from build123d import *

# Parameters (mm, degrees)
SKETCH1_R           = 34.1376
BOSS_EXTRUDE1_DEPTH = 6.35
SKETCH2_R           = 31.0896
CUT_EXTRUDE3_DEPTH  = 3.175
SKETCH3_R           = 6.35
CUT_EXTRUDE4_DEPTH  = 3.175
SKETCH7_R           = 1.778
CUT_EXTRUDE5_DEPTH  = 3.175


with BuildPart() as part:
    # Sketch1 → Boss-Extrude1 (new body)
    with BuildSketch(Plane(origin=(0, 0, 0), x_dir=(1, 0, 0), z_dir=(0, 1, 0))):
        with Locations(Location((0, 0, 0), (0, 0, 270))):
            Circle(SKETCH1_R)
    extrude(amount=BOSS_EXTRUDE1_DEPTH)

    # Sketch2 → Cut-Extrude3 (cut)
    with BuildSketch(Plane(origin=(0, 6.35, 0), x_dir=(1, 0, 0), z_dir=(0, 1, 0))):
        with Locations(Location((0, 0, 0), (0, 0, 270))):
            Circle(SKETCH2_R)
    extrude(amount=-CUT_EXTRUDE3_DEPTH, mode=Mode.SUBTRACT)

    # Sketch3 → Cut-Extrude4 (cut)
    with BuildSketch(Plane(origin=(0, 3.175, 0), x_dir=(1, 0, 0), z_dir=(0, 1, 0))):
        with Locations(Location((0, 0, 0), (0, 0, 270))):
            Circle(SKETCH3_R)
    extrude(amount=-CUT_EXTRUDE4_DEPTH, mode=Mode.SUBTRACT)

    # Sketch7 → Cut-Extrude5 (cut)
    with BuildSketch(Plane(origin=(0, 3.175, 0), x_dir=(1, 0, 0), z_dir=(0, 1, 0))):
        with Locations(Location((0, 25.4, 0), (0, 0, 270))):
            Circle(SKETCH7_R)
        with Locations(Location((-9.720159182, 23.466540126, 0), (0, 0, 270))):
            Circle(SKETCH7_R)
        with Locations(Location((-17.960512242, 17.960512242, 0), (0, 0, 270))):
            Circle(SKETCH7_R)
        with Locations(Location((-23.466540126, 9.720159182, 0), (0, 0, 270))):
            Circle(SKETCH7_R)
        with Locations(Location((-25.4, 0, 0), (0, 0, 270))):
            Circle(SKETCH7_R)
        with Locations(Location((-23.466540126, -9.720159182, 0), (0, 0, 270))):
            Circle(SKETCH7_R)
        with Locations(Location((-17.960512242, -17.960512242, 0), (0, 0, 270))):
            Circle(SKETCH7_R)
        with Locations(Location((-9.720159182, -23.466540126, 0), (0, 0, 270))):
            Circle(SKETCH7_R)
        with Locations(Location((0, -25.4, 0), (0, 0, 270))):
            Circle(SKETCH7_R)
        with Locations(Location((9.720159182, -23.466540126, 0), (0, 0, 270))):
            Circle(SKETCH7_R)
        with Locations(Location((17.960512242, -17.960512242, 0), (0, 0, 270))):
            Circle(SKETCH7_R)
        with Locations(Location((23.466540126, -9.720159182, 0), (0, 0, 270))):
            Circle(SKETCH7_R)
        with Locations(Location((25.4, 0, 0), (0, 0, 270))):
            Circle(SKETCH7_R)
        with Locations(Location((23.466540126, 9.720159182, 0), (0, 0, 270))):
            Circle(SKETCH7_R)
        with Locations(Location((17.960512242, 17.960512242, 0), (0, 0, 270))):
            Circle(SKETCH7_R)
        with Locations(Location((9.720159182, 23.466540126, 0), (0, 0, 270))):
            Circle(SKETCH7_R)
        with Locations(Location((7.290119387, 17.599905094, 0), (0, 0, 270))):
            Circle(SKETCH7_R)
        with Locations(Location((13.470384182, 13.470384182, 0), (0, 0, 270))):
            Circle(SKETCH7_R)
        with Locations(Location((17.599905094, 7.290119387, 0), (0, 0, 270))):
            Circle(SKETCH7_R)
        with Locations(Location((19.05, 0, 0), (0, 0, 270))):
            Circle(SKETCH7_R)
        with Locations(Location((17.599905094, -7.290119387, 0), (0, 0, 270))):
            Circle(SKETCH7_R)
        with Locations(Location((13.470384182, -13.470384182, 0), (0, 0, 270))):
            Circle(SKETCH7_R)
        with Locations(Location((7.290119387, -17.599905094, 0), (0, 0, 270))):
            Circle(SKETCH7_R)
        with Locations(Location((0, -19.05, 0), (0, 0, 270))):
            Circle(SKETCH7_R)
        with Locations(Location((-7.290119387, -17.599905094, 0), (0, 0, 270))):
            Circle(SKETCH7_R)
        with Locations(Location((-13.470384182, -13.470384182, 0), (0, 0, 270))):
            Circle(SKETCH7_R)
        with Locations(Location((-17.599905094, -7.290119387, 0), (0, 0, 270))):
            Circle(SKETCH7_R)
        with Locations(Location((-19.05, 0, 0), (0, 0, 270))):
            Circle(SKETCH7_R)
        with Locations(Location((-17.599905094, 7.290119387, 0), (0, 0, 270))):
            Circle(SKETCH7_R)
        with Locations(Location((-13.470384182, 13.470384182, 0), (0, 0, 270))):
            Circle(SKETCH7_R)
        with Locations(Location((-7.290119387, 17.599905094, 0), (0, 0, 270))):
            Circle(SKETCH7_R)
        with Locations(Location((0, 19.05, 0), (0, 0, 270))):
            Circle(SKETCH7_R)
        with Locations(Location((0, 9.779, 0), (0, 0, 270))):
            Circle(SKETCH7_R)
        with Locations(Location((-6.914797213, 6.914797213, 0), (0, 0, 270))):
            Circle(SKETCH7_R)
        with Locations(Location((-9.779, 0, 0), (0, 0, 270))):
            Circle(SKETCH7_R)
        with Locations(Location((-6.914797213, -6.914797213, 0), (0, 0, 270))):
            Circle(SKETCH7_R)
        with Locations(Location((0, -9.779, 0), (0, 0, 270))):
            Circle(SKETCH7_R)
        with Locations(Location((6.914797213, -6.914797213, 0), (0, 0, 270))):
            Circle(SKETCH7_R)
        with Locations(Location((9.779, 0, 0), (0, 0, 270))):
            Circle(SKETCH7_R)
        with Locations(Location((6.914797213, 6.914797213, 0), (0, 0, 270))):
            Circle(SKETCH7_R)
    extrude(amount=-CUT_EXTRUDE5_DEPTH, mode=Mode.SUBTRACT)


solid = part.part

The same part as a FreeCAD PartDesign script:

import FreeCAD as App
import Part
import Sketcher
from FreeCAD import Vector
Q = App.Units.Quantity

doc = App.newDocument("Part")
params = doc.addObject("Spreadsheet::Sheet", "Params")
for row, (alias, value) in enumerate([
    ("sketch1_diameter", "2.688 in"),
    ("pad1_length", "0.25 in"),
    ("sketch2_diameter", "2.448 in"),
    ("pocket1_length", "0.125 in"),
    ("sketch3_diameter", "0.5 in"),
    ("pocket2_length", "0.125 in"),
    ("sketch4_diameter", "0.14 in"),
    ("pocket3_length", "0.125 in"),
], start=1):
    params.set(f"A{row}", alias)
    params.set(f"B{row}", "=" + value)
    params.setAlias(f"B{row}", alias)

body = doc.addObject("PartDesign::Body", "Body")

# Sketch on XZ plane
sketch1 = body.newObject("Sketcher::SketchObject", "Sketch")
sketch1.AttachmentSupport = (doc.getObject("XZ_Plane"), [""])
sketch1.MapMode = "FlatFace"
sketch1.addGeometry(Part.Circle(Vector(0, 0, 0), Vector(0, 0, 1), 34), False)
sketch1.addConstraint(Sketcher.Constraint("Coincident", 0, 3, -1, 1))
sketch1.addConstraint(Sketcher.Constraint("Diameter", 0, Q("2.688 in")))
sketch1.setExpression("Constraints[1]", "Params.sketch1_diameter")
pad1 = body.newObject("PartDesign::Pad", "Pad")
pad1.Profile = sketch1
pad1.setExpression("Length", "Params.pad1_length")
pad1.Reversed = True

# Sketch on XZ plane
sketch2 = body.newObject("Sketcher::SketchObject", "Sketch001")
sketch2.AttachmentSupport = (doc.getObject("XZ_Plane"), [""])
sketch2.MapMode = "FlatFace"
sketch2.AttachmentOffset = App.Placement(Vector(0, 0, -0.25 * 25.4), App.Rotation())
sketch2.addGeometry(Part.Circle(Vector(0, 0, 0), Vector(0, 0, 1), 31), False)
sketch2.addConstraint(Sketcher.Constraint("Coincident", 0, 3, -1, 1))
sketch2.addConstraint(Sketcher.Constraint("Diameter", 0, Q("2.448 in")))
sketch2.setExpression("Constraints[1]", "Params.sketch2_diameter")
pocket1 = body.newObject("PartDesign::Pocket", "Pocket")
pocket1.Profile = sketch2
pocket1.setExpression("Length", "Params.pocket1_length")
pocket1.Reversed = True

# Sketch on XZ plane
sketch3 = body.newObject("Sketcher::SketchObject", "Sketch002")
sketch3.AttachmentSupport = (doc.getObject("XZ_Plane"), [""])
sketch3.MapMode = "FlatFace"
sketch3.AttachmentOffset = App.Placement(Vector(0, 0, -0.125 * 25.4), App.Rotation())
sketch3.addGeometry(Part.Circle(Vector(0, 0, 0), Vector(0, 0, 1), 6), False)
sketch3.addConstraint(Sketcher.Constraint("Coincident", 0, 3, -1, 1))
sketch3.addConstraint(Sketcher.Constraint("Diameter", 0, Q("0.5 in")))
sketch3.setExpression("Constraints[1]", "Params.sketch3_diameter")
pocket2 = body.newObject("PartDesign::Pocket", "Pocket001")
pocket2.Profile = sketch3
pocket2.setExpression("Length", "Params.pocket2_length")
pocket2.Reversed = True

# Sketch on XZ plane
sketch4 = body.newObject("Sketcher::SketchObject", "Sketch003")
sketch4.AttachmentSupport = (doc.getObject("XZ_Plane"), [""])
sketch4.MapMode = "FlatFace"
sketch4.AttachmentOffset = App.Placement(Vector(0, 0, -0.125 * 25.4), App.Rotation())
sketch4.addGeometry(Part.Circle(Vector(0, -25.4, 0), Vector(0, 0, 1), 1.8), False)
sketch4.addGeometry(Part.Circle(Vector(-9.7, -23.5, 0), Vector(0, 0, 1), 1.8), False)
sketch4.addGeometry(Part.Circle(Vector(-18, -18, 0), Vector(0, 0, 1), 1.8), False)
sketch4.addGeometry(Part.Circle(Vector(-23.5, -9.7, 0), Vector(0, 0, 1), 1.8), False)
sketch4.addGeometry(Part.Circle(Vector(-25.4, 0, 0), Vector(0, 0, 1), 1.8), False)
sketch4.addGeometry(Part.Circle(Vector(-23.5, 9.7, 0), Vector(0, 0, 1), 1.8), False)
sketch4.addGeometry(Part.Circle(Vector(-18, 18, 0), Vector(0, 0, 1), 1.8), False)
sketch4.addGeometry(Part.Circle(Vector(-9.7, 23.5, 0), Vector(0, 0, 1), 1.8), False)
sketch4.addGeometry(Part.Circle(Vector(0, 25.4, 0), Vector(0, 0, 1), 1.8), False)
sketch4.addGeometry(Part.Circle(Vector(9.7, 23.5, 0), Vector(0, 0, 1), 1.8), False)
sketch4.addGeometry(Part.Circle(Vector(18, 18, 0), Vector(0, 0, 1), 1.8), False)
sketch4.addGeometry(Part.Circle(Vector(23.5, 9.7, 0), Vector(0, 0, 1), 1.8), False)
sketch4.addGeometry(Part.Circle(Vector(25.4, 0, 0), Vector(0, 0, 1), 1.8), False)
sketch4.addGeometry(Part.Circle(Vector(23.5, -9.7, 0), Vector(0, 0, 1), 1.8), False)
sketch4.addGeometry(Part.Circle(Vector(18, -18, 0), Vector(0, 0, 1), 1.8), False)
sketch4.addGeometry(Part.Circle(Vector(9.7, -23.5, 0), Vector(0, 0, 1), 1.8), False)
sketch4.addGeometry(Part.Circle(Vector(7.3, -17.6, 0), Vector(0, 0, 1), 1.8), False)
sketch4.addGeometry(Part.Circle(Vector(13.5, -13.5, 0), Vector(0, 0, 1), 1.8), False)
sketch4.addGeometry(Part.Circle(Vector(17.6, -7.3, 0), Vector(0, 0, 1), 1.8), False)
sketch4.addGeometry(Part.Circle(Vector(19.1, 0, 0), Vector(0, 0, 1), 1.8), False)
sketch4.addGeometry(Part.Circle(Vector(17.6, 7.3, 0), Vector(0, 0, 1), 1.8), False)
sketch4.addGeometry(Part.Circle(Vector(13.5, 13.5, 0), Vector(0, 0, 1), 1.8), False)
sketch4.addGeometry(Part.Circle(Vector(7.3, 17.6, 0), Vector(0, 0, 1), 1.8), False)
sketch4.addGeometry(Part.Circle(Vector(0, 19.1, 0), Vector(0, 0, 1), 1.8), False)
sketch4.addGeometry(Part.Circle(Vector(-7.3, 17.6, 0), Vector(0, 0, 1), 1.8), False)
sketch4.addGeometry(Part.Circle(Vector(-13.5, 13.5, 0), Vector(0, 0, 1), 1.8), False)
sketch4.addGeometry(Part.Circle(Vector(-17.6, 7.3, 0), Vector(0, 0, 1), 1.8), False)
sketch4.addGeometry(Part.Circle(Vector(-19.1, 0, 0), Vector(0, 0, 1), 1.8), False)
sketch4.addGeometry(Part.Circle(Vector(-17.6, -7.3, 0), Vector(0, 0, 1), 1.8), False)
sketch4.addGeometry(Part.Circle(Vector(-13.5, -13.5, 0), Vector(0, 0, 1), 1.8), False)
sketch4.addGeometry(Part.Circle(Vector(-7.3, -17.6, 0), Vector(0, 0, 1), 1.8), False)
sketch4.addGeometry(Part.Circle(Vector(0, -19.1, 0), Vector(0, 0, 1), 1.8), False)
sketch4.addGeometry(Part.Circle(Vector(0, -9.8, 0), Vector(0, 0, 1), 1.8), False)
sketch4.addGeometry(Part.Circle(Vector(-6.9, -6.9, 0), Vector(0, 0, 1), 1.8), False)
sketch4.addGeometry(Part.Circle(Vector(-9.8, 0, 0), Vector(0, 0, 1), 1.8), False)
sketch4.addGeometry(Part.Circle(Vector(-6.9, 6.9, 0), Vector(0, 0, 1), 1.8), False)
sketch4.addGeometry(Part.Circle(Vector(0, 9.8, 0), Vector(0, 0, 1), 1.8), False)
sketch4.addGeometry(Part.Circle(Vector(6.9, 6.9, 0), Vector(0, 0, 1), 1.8), False)
sketch4.addGeometry(Part.Circle(Vector(9.8, 0, 0), Vector(0, 0, 1), 1.8), False)
sketch4.addGeometry(Part.Circle(Vector(6.9, -6.9, 0), Vector(0, 0, 1), 1.8), False)
sketch4.addConstraint(Sketcher.Constraint("Equal", 0, 1))
sketch4.addConstraint(Sketcher.Constraint("Equal", 1, 2))
sketch4.addConstraint(Sketcher.Constraint("Equal", 2, 3))
sketch4.addConstraint(Sketcher.Constraint("Equal", 3, 4))
sketch4.addConstraint(Sketcher.Constraint("Equal", 4, 5))
sketch4.addConstraint(Sketcher.Constraint("Equal", 5, 6))
sketch4.addConstraint(Sketcher.Constraint("Equal", 6, 7))
sketch4.addConstraint(Sketcher.Constraint("Equal", 7, 8))
sketch4.addConstraint(Sketcher.Constraint("Equal", 8, 9))
sketch4.addConstraint(Sketcher.Constraint("Equal", 9, 10))
sketch4.addConstraint(Sketcher.Constraint("Equal", 10, 11))
sketch4.addConstraint(Sketcher.Constraint("Equal", 11, 12))
sketch4.addConstraint(Sketcher.Constraint("Equal", 12, 13))
sketch4.addConstraint(Sketcher.Constraint("Equal", 13, 14))
sketch4.addConstraint(Sketcher.Constraint("Equal", 14, 15))
sketch4.addConstraint(Sketcher.Constraint("Equal", 15, 16))
sketch4.addConstraint(Sketcher.Constraint("Equal", 16, 17))
sketch4.addConstraint(Sketcher.Constraint("Equal", 17, 18))
sketch4.addConstraint(Sketcher.Constraint("Equal", 18, 19))
sketch4.addConstraint(Sketcher.Constraint("Equal", 19, 20))
sketch4.addConstraint(Sketcher.Constraint("Equal", 20, 21))
sketch4.addConstraint(Sketcher.Constraint("Equal", 21, 22))
sketch4.addConstraint(Sketcher.Constraint("Equal", 22, 23))
sketch4.addConstraint(Sketcher.Constraint("Equal", 23, 24))
sketch4.addConstraint(Sketcher.Constraint("Equal", 24, 25))
sketch4.addConstraint(Sketcher.Constraint("Equal", 25, 26))
sketch4.addConstraint(Sketcher.Constraint("Equal", 26, 27))
sketch4.addConstraint(Sketcher.Constraint("Equal", 27, 28))
sketch4.addConstraint(Sketcher.Constraint("Equal", 28, 29))
sketch4.addConstraint(Sketcher.Constraint("Equal", 29, 30))
sketch4.addConstraint(Sketcher.Constraint("Equal", 30, 31))
sketch4.addConstraint(Sketcher.Constraint("Equal", 31, 32))
sketch4.addConstraint(Sketcher.Constraint("Equal", 32, 33))
sketch4.addConstraint(Sketcher.Constraint("Equal", 33, 34))
sketch4.addConstraint(Sketcher.Constraint("Equal", 34, 35))
sketch4.addConstraint(Sketcher.Constraint("Equal", 35, 36))
sketch4.addConstraint(Sketcher.Constraint("Equal", 36, 37))
sketch4.addConstraint(Sketcher.Constraint("Equal", 37, 38))
sketch4.addConstraint(Sketcher.Constraint("Equal", 38, 39))
sketch4.addConstraint(Sketcher.Constraint("Symmetric", 0, 3, 8, 3, -1, 1))
sketch4.addConstraint(Sketcher.Constraint("Symmetric", 1, 3, 9, 3, -1, 1))
sketch4.addConstraint(Sketcher.Constraint("Symmetric", 2, 3, 10, 3, -1, 1))
sketch4.addConstraint(Sketcher.Constraint("Symmetric", 3, 3, 11, 3, -1, 1))
sketch4.addConstraint(Sketcher.Constraint("Symmetric", 4, 3, 12, 3, -1, 1))
sketch4.addConstraint(Sketcher.Constraint("Symmetric", 5, 3, 13, 3, -1, 1))
sketch4.addConstraint(Sketcher.Constraint("Symmetric", 6, 3, 14, 3, -1, 1))
sketch4.addConstraint(Sketcher.Constraint("Symmetric", 7, 3, 15, 3, -1, 1))
sketch4.addConstraint(Sketcher.Constraint("Symmetric", 16, 3, 24, 3, -1, 1))
sketch4.addConstraint(Sketcher.Constraint("Symmetric", 17, 3, 25, 3, -1, 1))
sketch4.addConstraint(Sketcher.Constraint("Symmetric", 18, 3, 26, 3, -1, 1))
sketch4.addConstraint(Sketcher.Constraint("Symmetric", 19, 3, 27, 3, -1, 1))
sketch4.addConstraint(Sketcher.Constraint("Symmetric", 20, 3, 28, 3, -1, 1))
sketch4.addConstraint(Sketcher.Constraint("Symmetric", 21, 3, 29, 3, -1, 1))
sketch4.addConstraint(Sketcher.Constraint("Symmetric", 22, 3, 30, 3, -1, 1))
sketch4.addConstraint(Sketcher.Constraint("Symmetric", 23, 3, 31, 3, -1, 1))
sketch4.addConstraint(Sketcher.Constraint("Symmetric", 32, 3, 36, 3, -1, 1))
sketch4.addConstraint(Sketcher.Constraint("Symmetric", 33, 3, 37, 3, -1, 1))
sketch4.addConstraint(Sketcher.Constraint("Symmetric", 34, 3, 38, 3, -1, 1))
sketch4.addConstraint(Sketcher.Constraint("Symmetric", 35, 3, 39, 3, -1, 1))
sketch4.addConstraint(Sketcher.Constraint("Symmetric", 7, 3, 9, 3, -2))
sketch4.addConstraint(Sketcher.Constraint("Symmetric", 6, 3, 10, 3, -2))
sketch4.addConstraint(Sketcher.Constraint("Symmetric", 5, 3, 11, 3, -2))
sketch4.addConstraint(Sketcher.Constraint("Symmetric", 22, 3, 24, 3, -2))
sketch4.addConstraint(Sketcher.Constraint("Symmetric", 21, 3, 25, 3, -2))
sketch4.addConstraint(Sketcher.Constraint("Symmetric", 20, 3, 26, 3, -2))
sketch4.addConstraint(Sketcher.Constraint("Symmetric", 35, 3, 37, 3, -2))
sketch4.addConstraint(Sketcher.Constraint("PointOnObject", 0, 3, -2))
sketch4.addConstraint(Sketcher.Constraint("PointOnObject", 4, 3, -1))
sketch4.addConstraint(Sketcher.Constraint("PointOnObject", 19, 3, -1))
sketch4.addConstraint(Sketcher.Constraint("PointOnObject", 23, 3, -2))
sketch4.addConstraint(Sketcher.Constraint("PointOnObject", 32, 3, -2))
sketch4.addConstraint(Sketcher.Constraint("PointOnObject", 34, 3, -1))
sketch4.addConstraint(Sketcher.Constraint("Diameter", 0, Q("0.14 in")))
sketch4.addConstraint(Sketcher.Constraint("DistanceY", 0, 3, -1, 1, Q("1 in")))
sketch4.addConstraint(Sketcher.Constraint("DistanceX", 4, 3, -1, 1, Q("1 in")))
sketch4.addConstraint(Sketcher.Constraint("DistanceX", -1, 1, 19, 3, Q("0.75 in")))
sketch4.addConstraint(Sketcher.Constraint("DistanceY", -1, 1, 23, 3, Q("0.75 in")))
sketch4.addConstraint(Sketcher.Constraint("DistanceY", 32, 3, -1, 1, Q("0.385 in")))
sketch4.addConstraint(Sketcher.Constraint("DistanceX", 34, 3, -1, 1, Q("0.385 in")))
sketch4.addConstraint(Sketcher.Constraint("DistanceY", 1, 3, 5, 3, Q("33.186699 mm")))
sketch4.addConstraint(Sketcher.Constraint("DistanceX", 5, 3, 9, 3, Q("33.186699 mm")))
sketch4.addConstraint(Sketcher.Constraint("DistanceX", 1, 3, -1, 1, Q("9.720159 mm")))
sketch4.addConstraint(Sketcher.Constraint("DistanceY", 1, 3, -1, 1, Q("23.46654 mm")))
sketch4.addConstraint(Sketcher.Constraint("DistanceX", -1, 1, 16, 3, Q("7.290119 mm")))
sketch4.addConstraint(Sketcher.Constraint("DistanceY", 18, 3, -1, 1, Q("7.290119 mm")))
sketch4.addConstraint(Sketcher.Constraint("DistanceY", 2, 3, 5, 3, Q("27.680671 mm")))
sketch4.addConstraint(Sketcher.Constraint("DistanceX", 6, 3, 9, 3, Q("27.680671 mm")))
sketch4.addConstraint(Sketcher.Constraint("DistanceX", 17, 3, 14, 3, Q("4.490128 mm")))
sketch4.addConstraint(Sketcher.Constraint("DistanceY", 14, 3, 17, 3, Q("4.490128 mm")))
sketch4.addConstraint(Sketcher.Constraint("DistanceY", 16, 3, 17, 3, Q("4.129521 mm")))
sketch4.addConstraint(Sketcher.Constraint("DistanceX", 17, 3, 18, 3, Q("4.129521 mm")))
sketch4.addConstraint(Sketcher.Constraint("DistanceX", 33, 3, -1, 1, Q("6.914797 mm")))
sketch4.addConstraint(Sketcher.Constraint("DistanceY", 33, 3, -1, 1, Q("6.914797 mm")))
sketch4.setExpression("Constraints[72]", "Params.sketch4_diameter")
pocket3 = body.newObject("PartDesign::Pocket", "Pocket002")
pocket3.Profile = sketch4
pocket3.setExpression("Length", "Params.pocket3_length")
pocket3.Reversed = True

doc.recompute()
